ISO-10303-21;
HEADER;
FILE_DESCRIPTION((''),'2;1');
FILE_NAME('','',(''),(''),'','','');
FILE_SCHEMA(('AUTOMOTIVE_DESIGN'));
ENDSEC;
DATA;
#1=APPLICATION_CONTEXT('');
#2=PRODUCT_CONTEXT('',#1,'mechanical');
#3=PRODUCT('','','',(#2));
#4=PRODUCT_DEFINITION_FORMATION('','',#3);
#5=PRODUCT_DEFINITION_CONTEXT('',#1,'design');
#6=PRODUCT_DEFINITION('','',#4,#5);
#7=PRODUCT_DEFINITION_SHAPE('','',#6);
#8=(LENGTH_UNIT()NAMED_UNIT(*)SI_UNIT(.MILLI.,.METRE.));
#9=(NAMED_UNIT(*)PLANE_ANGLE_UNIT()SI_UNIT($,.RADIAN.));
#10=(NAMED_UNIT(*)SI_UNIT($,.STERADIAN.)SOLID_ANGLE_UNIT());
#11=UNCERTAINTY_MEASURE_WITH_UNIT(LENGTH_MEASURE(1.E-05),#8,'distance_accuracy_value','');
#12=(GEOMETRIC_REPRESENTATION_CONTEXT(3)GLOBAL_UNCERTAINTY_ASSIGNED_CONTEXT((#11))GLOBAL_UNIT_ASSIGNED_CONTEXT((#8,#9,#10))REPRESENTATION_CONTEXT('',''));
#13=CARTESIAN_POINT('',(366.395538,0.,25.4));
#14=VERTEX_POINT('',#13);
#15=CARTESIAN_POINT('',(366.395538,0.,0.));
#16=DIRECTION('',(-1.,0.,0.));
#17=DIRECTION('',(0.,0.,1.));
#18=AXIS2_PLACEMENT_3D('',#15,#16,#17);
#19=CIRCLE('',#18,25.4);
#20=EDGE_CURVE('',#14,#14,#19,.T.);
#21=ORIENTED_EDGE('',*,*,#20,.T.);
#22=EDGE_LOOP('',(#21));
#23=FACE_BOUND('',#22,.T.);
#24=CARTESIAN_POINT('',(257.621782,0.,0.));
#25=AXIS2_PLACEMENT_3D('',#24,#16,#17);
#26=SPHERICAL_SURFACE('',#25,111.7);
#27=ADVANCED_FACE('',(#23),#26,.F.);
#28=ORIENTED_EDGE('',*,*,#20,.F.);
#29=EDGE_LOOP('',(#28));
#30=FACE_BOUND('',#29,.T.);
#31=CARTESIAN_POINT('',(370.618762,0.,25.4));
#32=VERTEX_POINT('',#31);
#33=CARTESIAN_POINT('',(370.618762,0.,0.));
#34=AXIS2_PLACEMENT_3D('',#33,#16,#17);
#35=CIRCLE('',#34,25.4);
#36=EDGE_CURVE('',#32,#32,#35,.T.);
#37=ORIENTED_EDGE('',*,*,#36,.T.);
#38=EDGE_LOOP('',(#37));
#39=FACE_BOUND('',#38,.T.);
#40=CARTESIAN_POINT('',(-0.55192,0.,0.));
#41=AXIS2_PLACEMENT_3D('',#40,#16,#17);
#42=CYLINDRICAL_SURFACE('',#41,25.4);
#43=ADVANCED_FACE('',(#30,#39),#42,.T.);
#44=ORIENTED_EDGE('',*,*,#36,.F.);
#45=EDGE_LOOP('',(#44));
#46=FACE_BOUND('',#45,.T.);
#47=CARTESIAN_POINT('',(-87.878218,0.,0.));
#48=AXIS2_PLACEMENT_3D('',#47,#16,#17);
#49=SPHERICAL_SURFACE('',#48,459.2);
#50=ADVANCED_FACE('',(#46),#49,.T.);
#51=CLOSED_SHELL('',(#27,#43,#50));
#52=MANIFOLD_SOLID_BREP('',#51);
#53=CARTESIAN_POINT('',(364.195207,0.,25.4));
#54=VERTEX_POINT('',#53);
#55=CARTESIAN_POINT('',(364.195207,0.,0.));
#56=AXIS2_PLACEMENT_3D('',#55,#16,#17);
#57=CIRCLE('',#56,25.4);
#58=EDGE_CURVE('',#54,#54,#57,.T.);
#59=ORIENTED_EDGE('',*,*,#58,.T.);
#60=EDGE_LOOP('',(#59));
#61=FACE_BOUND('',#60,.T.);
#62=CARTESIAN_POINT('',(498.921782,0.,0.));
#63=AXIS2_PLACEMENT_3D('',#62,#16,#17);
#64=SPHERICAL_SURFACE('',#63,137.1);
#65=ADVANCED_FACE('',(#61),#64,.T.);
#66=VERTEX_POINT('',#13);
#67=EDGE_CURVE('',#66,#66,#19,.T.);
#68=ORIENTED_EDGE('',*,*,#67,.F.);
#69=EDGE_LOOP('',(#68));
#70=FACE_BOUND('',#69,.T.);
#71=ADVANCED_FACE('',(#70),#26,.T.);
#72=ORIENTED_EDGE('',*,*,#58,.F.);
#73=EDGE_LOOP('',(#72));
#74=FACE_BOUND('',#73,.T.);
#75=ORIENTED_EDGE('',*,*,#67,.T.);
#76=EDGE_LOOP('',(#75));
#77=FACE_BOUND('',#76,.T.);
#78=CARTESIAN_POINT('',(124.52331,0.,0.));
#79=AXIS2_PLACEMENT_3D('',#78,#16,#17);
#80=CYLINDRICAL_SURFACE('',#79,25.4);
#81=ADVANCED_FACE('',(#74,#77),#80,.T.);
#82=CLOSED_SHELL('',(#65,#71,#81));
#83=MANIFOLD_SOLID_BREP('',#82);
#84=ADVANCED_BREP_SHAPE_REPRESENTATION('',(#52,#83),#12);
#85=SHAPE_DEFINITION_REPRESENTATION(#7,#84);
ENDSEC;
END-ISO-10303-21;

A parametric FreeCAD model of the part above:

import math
import FreeCAD as App
import Part
import Sketcher

doc = App.newDocument("Part")
body = doc.addObject("PartDesign::Body", "Body")

sketch1 = body.newObject("Sketcher::SketchObject", "Sketch")
sketch1.AttachmentSupport = (doc.getObject("XZ_Plane"), [""])
sketch1.MapMode = "FlatFace"
sketch1.addGeometry([
    Part.ArcOfCircle(Part.Circle(App.Vector(498.9, 0, 0), App.Vector(0, 0, 1), 137.1), math.radians(-180), math.radians(-169.32)),
    Part.LineSegment(App.Vector(361.8, 0, 0), App.Vector(369.3, 0, 0)),
    Part.ArcOfCircle(Part.Circle(App.Vector(257.6, 0, 0), App.Vector(0, 0, 1), 111.7), math.radians(-13.14), math.radians(0)),
    Part.LineSegment(App.Vector(366.4, -25.4, 0), App.Vector(364.2, -25.4, 0)),
], False)
sketch1.addConstraint([
    Sketcher.Constraint("Coincident", 0, 1, 1, 1),
    Sketcher.Constraint("Coincident", 1, 2, 2, 2),
    Sketcher.Constraint("Coincident", 2, 1, 3, 1),
    Sketcher.Constraint("Coincident", 3, 2, 0, 2),
    Sketcher.Constraint("Horizontal", 1),
    Sketcher.Constraint("Horizontal", 3),
    Sketcher.Constraint("PointOnObject", 0, 3, -1),
    Sketcher.Constraint("PointOnObject", 2, 3, -1),
    Sketcher.Constraint("PointOnObject", 0, 1, -1),
    Sketcher.Constraint("Radius", 0, 137.1),
    Sketcher.Constraint("Radius", 2, 111.7),
    Sketcher.Constraint("DistanceX", 1, 1, 1, 2, 7.5),
    Sketcher.Constraint("DistanceY", 2, 1, -1, 1, 25.4),
    Sketcher.Constraint("DistanceX", -1, 1, 2, 1, 366.395538),
])
revolution = body.newObject("PartDesign::Revolution", "Revolution")
revolution.Profile = sketch1
revolution.ReferenceAxis = (sketch1, ["H_Axis"])
revolution.Angle = 360
body2 = doc.addObject("PartDesign::Body", "Body001")

sketch2 = body2.newObject("Sketcher::SketchObject", "Sketch001")
sketch2.AttachmentSupport = (doc.getObject("XZ_Plane001"), [""])
sketch2.MapMode = "FlatFace"
sketch2.addGeometry([
    Part.LineSegment(App.Vector(370.6, -25.4, 0), App.Vector(366.4, -25.4, 0)),
    Part.ArcOfCircle(Part.Circle(App.Vector(257.6, 0, 0), App.Vector(0, 0, 1), 111.7), math.radians(-13.14), math.radians(0)),
    Part.LineSegment(App.Vector(369.3, 0, 0), App.Vector(371.3, 0, 0)),
    Part.ArcOfCircle(Part.Circle(App.Vector(-87.9, 0, 0), App.Vector(0, 0, 1), 459.2), math.radians(-3.17), math.radians(0)),
], False)
sketch2.addConstraint([
    Sketcher.Constraint("Coincident", 0, 2, 1, 1),
    Sketcher.Constraint("Coincident", 1, 2, 2, 1),
    Sketcher.Constraint("Coincident", 2, 2, 3, 2),
    Sketcher.Constraint("Coincident", 3, 1, 0, 1),
    Sketcher.Constraint("Horizontal", 0),
    Sketcher.Constraint("Horizontal", 2),
    Sketcher.Constraint("PointOnObject", 1, 3, -1),
    Sketcher.Constraint("PointOnObject", 3, 3, -1),
    Sketcher.Constraint("PointOnObject", 1, 2, -1),
    Sketcher.Constraint("Radius", 1, 111.7),
    Sketcher.Constraint("Radius", 3, 459.2),
    Sketcher.Constraint("DistanceX", 2, 1, 2, 2, 2.0),
    Sketcher.Constraint("DistanceY", 0, 2, -1, 1, 25.4),
    Sketcher.Constraint("DistanceX", -1, 1, 0, 2, 366.395538),
])
revolution2 = body2.newObject("PartDesign::Revolution", "Revolution001")
revolution2.Profile = sketch2
revolution2.ReferenceAxis = (sketch2, ["H_Axis"])
revolution2.Angle = 360

doc.recompute()
